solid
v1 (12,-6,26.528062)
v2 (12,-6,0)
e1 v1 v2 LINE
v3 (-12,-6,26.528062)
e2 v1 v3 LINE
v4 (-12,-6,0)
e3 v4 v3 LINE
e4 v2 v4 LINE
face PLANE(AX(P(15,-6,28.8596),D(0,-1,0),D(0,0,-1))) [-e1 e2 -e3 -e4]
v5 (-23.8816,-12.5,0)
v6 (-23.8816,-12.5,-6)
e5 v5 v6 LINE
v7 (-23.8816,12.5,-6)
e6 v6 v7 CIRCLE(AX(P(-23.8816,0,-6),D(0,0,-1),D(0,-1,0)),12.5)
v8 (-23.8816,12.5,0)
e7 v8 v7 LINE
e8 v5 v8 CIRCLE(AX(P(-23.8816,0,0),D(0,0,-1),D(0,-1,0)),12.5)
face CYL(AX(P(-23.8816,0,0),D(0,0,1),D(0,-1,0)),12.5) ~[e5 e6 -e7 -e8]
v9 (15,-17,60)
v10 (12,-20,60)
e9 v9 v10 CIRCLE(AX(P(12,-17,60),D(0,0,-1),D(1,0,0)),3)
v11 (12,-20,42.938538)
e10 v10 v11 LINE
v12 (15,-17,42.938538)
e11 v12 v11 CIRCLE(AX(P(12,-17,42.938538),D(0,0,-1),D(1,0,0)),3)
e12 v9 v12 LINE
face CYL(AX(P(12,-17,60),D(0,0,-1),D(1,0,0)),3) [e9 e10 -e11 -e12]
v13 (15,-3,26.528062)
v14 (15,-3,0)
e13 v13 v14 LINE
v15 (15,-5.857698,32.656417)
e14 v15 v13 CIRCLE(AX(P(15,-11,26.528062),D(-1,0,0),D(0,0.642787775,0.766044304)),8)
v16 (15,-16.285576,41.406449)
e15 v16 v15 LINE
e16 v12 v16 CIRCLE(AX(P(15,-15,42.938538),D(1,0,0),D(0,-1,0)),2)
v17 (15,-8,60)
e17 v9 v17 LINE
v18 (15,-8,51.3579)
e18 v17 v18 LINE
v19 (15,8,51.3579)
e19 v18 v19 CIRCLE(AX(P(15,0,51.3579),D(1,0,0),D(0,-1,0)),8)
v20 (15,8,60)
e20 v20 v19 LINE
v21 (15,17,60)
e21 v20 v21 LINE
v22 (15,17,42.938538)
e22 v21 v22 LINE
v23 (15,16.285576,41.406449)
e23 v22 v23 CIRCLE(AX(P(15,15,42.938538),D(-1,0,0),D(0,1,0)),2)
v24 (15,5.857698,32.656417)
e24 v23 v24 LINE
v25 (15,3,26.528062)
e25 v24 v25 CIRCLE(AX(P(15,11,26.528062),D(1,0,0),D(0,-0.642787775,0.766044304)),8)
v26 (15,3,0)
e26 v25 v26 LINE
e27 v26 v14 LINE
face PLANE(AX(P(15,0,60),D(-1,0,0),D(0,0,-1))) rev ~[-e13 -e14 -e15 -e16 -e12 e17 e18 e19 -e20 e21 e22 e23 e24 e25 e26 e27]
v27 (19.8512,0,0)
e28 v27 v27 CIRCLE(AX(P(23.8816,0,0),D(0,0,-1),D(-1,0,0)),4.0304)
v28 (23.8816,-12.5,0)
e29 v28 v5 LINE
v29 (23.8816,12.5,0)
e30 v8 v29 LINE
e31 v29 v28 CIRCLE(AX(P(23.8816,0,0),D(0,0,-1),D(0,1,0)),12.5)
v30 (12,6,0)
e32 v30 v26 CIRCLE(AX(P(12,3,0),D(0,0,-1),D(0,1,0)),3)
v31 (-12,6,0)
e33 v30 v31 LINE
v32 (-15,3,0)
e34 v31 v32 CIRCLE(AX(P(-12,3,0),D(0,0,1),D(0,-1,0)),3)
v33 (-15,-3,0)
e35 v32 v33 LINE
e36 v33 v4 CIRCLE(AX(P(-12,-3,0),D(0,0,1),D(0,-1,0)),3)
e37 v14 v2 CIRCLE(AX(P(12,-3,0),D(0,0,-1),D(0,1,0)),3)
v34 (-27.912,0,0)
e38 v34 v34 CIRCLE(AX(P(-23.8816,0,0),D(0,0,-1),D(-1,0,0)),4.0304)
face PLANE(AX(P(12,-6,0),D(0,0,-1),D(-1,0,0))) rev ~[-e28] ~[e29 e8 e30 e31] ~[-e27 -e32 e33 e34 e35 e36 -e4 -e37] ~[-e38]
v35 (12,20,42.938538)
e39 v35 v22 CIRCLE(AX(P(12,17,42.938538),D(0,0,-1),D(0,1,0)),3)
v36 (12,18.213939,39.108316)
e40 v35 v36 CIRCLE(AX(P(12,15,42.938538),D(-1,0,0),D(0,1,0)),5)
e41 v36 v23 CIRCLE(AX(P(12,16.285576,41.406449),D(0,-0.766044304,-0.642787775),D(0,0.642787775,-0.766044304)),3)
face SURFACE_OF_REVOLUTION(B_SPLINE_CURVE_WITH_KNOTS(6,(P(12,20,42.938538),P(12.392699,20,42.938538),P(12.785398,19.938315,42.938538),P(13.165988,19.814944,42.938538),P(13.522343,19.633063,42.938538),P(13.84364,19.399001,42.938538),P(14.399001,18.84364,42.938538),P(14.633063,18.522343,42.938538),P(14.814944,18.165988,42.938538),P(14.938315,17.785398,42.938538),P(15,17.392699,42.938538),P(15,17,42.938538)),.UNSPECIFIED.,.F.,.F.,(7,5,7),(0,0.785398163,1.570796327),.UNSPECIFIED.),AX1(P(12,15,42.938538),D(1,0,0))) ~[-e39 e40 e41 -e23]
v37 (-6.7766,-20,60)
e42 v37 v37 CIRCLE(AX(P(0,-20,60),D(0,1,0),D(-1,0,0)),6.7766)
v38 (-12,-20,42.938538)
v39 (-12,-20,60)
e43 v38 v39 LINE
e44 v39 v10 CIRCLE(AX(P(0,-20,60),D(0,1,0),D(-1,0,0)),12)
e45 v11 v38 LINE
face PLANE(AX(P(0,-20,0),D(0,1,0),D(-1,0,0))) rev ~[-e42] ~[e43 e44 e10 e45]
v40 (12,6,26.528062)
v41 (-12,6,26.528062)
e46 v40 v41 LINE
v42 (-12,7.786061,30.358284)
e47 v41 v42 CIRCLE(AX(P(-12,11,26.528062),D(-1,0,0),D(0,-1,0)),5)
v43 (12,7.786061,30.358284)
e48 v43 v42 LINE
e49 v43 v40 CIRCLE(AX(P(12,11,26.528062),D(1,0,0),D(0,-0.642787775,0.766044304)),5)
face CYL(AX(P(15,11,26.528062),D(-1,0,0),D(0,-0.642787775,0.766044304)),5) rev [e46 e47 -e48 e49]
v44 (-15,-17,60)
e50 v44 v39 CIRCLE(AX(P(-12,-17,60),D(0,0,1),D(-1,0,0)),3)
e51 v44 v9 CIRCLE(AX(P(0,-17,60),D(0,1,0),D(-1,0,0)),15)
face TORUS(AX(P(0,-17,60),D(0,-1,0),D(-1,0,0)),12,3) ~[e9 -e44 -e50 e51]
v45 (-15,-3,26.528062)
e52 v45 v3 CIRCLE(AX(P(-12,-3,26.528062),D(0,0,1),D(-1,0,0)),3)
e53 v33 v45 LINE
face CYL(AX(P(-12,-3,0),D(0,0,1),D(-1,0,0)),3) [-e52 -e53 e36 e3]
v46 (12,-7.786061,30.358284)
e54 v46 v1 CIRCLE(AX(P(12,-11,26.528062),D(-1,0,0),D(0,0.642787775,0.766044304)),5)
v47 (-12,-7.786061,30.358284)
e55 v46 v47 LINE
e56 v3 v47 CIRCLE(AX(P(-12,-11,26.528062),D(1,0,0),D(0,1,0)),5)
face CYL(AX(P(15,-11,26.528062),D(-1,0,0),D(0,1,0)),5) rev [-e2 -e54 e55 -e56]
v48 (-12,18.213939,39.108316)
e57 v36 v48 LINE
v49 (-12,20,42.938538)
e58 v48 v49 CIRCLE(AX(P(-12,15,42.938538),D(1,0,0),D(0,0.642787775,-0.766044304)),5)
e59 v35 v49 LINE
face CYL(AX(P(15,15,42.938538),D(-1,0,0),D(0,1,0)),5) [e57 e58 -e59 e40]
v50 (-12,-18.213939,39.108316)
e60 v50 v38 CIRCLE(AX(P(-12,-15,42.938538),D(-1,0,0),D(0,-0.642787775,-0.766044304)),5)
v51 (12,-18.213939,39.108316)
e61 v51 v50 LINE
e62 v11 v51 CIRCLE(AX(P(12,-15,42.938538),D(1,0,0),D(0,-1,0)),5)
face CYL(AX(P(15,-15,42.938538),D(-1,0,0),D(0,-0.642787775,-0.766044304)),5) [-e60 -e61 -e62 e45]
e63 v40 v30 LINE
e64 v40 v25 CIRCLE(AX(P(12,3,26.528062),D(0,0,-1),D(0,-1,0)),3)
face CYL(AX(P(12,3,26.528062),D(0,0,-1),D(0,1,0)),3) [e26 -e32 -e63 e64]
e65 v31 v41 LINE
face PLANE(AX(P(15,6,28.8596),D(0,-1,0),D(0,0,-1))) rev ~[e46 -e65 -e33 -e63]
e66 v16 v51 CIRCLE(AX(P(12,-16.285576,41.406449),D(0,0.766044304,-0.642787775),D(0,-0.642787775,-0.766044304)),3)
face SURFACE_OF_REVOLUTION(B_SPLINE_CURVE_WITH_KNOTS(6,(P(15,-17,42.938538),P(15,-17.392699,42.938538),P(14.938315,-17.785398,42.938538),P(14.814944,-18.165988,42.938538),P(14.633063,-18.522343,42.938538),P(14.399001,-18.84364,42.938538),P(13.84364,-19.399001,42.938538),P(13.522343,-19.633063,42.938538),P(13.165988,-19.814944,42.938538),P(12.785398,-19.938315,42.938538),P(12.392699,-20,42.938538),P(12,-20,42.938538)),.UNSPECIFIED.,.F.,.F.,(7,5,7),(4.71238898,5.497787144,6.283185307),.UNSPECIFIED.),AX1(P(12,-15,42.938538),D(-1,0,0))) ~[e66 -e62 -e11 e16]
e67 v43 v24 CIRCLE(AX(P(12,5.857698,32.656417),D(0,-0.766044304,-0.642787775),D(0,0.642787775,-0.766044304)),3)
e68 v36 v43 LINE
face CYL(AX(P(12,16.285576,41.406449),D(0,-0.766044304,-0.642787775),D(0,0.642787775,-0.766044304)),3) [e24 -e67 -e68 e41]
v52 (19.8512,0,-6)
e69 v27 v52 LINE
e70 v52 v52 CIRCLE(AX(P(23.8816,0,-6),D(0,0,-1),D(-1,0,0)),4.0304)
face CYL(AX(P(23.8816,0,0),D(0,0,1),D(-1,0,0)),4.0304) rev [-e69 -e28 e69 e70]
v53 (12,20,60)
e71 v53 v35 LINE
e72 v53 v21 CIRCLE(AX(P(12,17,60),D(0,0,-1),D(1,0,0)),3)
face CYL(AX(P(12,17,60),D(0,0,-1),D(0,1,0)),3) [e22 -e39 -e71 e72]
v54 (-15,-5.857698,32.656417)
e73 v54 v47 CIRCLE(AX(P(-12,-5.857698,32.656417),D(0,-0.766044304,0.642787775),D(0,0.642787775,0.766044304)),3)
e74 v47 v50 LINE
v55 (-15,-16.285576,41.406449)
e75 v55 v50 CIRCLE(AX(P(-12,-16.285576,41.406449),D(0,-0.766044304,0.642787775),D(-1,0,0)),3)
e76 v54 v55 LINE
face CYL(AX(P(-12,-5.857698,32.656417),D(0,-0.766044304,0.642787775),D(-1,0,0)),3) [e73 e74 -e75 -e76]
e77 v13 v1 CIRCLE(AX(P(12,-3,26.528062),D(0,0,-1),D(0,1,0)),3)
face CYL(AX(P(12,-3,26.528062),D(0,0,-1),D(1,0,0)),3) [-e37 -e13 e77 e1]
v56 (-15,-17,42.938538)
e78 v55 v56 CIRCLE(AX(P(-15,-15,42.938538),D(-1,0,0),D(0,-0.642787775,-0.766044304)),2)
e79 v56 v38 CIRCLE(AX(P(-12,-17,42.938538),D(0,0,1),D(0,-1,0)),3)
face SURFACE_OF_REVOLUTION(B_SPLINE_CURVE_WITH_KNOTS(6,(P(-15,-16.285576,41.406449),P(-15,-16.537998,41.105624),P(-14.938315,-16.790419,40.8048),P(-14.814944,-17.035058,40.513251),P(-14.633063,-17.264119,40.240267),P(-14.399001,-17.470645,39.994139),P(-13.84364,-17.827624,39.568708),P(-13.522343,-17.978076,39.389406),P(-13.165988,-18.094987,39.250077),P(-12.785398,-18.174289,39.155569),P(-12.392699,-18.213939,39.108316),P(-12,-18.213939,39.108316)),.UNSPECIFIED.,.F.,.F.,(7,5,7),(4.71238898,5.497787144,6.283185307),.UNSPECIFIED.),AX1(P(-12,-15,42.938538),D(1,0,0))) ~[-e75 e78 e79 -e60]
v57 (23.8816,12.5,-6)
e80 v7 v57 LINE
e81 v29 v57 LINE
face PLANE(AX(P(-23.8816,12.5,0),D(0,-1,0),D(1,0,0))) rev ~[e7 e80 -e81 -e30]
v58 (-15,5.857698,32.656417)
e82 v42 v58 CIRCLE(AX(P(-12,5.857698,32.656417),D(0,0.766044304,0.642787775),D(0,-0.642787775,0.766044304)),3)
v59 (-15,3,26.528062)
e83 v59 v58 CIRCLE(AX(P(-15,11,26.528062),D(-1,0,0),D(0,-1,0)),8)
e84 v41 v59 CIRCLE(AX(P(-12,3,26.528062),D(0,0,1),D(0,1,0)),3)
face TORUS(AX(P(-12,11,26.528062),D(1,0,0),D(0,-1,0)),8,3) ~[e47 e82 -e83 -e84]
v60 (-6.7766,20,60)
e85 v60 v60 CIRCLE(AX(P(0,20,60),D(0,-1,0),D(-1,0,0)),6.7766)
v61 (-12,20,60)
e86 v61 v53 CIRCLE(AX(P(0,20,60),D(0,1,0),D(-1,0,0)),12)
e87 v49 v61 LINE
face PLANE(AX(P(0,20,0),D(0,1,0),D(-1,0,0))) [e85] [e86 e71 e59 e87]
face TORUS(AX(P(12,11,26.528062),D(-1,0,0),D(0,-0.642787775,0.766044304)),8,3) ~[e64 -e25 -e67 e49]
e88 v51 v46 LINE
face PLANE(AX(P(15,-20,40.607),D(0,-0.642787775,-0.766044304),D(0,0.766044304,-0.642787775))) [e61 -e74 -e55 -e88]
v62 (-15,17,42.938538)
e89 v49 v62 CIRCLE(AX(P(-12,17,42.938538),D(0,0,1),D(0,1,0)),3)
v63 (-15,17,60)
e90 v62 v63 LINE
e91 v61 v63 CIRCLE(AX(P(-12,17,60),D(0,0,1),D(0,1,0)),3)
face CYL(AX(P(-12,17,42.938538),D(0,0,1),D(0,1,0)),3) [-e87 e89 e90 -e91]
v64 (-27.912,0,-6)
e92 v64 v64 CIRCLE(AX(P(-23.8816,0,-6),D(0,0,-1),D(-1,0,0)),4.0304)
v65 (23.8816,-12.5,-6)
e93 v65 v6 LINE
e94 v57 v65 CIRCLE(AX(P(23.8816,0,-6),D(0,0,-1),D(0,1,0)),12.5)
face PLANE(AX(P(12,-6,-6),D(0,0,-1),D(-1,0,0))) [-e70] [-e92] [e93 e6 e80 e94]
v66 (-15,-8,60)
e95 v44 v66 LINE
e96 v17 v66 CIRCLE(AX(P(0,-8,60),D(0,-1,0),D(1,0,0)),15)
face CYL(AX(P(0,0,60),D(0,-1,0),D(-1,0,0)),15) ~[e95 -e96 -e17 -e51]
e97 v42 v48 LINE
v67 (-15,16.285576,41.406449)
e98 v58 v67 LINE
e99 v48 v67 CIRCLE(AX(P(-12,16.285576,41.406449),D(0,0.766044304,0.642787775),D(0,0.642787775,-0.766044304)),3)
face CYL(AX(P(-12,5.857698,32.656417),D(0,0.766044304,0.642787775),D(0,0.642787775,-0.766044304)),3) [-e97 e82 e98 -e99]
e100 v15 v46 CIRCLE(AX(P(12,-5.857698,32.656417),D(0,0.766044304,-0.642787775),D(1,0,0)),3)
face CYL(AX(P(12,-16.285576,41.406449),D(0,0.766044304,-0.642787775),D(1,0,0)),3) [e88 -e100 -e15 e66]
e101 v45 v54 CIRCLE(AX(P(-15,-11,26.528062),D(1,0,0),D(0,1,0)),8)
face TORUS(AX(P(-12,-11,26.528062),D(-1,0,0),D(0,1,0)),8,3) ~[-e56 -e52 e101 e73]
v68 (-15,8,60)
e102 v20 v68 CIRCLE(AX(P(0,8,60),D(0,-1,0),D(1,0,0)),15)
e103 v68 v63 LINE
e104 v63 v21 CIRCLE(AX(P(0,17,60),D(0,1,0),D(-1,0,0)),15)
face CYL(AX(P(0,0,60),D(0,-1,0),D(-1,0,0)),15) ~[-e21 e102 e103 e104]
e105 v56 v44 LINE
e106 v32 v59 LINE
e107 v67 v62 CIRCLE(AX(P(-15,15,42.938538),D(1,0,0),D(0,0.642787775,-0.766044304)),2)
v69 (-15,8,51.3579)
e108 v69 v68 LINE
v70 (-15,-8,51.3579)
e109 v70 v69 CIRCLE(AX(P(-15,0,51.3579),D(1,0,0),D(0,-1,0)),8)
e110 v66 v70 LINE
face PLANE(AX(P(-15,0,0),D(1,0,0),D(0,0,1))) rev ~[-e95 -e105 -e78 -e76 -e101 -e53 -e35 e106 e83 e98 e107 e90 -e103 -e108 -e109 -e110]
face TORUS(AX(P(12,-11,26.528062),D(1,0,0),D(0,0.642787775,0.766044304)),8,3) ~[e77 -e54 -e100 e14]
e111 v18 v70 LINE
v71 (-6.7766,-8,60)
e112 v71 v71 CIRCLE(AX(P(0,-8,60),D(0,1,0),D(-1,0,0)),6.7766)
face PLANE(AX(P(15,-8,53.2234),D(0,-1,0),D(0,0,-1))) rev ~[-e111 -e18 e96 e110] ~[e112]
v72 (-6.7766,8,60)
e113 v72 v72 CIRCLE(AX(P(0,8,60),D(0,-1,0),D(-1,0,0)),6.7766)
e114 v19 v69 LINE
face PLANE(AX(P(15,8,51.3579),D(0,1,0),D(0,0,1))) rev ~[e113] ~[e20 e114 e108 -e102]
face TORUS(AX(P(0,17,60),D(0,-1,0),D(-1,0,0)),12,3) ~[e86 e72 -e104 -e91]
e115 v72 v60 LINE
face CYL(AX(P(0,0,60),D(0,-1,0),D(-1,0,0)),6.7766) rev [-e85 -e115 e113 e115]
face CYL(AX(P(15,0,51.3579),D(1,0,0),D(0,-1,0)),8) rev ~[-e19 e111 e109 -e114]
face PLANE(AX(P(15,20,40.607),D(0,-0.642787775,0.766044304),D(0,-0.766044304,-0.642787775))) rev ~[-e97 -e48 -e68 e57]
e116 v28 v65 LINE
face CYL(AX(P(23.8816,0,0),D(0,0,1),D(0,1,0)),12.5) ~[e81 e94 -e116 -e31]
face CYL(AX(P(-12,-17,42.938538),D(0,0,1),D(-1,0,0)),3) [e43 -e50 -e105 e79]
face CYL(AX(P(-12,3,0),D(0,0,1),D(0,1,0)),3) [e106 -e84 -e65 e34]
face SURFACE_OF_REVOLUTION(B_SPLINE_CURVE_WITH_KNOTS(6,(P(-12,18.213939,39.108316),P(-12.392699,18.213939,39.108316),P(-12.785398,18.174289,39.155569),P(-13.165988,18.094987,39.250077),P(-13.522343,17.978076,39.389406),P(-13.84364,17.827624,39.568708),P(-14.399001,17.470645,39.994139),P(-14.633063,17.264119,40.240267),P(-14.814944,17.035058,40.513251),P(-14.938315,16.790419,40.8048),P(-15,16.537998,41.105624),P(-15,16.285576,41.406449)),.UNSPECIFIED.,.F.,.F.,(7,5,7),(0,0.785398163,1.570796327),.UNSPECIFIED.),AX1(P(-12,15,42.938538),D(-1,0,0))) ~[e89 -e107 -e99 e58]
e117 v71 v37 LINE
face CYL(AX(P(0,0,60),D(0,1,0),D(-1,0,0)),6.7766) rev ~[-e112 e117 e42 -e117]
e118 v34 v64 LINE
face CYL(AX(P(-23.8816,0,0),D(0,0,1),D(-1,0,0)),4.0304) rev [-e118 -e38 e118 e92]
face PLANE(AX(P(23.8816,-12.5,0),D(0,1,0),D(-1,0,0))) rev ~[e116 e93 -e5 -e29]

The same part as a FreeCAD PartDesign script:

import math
import FreeCAD as App
import Part
import Sketcher

V = App.Vector
Q = App.Units.Quantity


def edges_at(feature, points):
    """Names of the edges that pass closest to the given points."""
    edges = feature.Shape.Edges
    near = lambda p: min(range(len(edges)), key=lambda i: edges[i].distToShape(Part.Vertex(*p))[0])
    return sorted({f"Edge{near(p) + 1}" for p in points})

doc = App.newDocument("Part")
body = doc.addObject("PartDesign::Body", "Body")

# Sketch on XZ plane
sketch1 = body.newObject("Sketcher::SketchObject", "Sketch")
sketch1.AttachmentSupport = (doc.getObject("XZ_Plane"), [""])
sketch1.MapMode = "FlatFace"
sketch1.addGeometry([
    Part.LineSegment(V(-15, 0, 0), V(-15, 60, 0)),  # 0
    Part.ArcOfCircle(Part.Circle(V(0, 60, 0), V(0, 0, 1), 15), math.radians(0), math.radians(180)),  # 1
    Part.LineSegment(V(15, 60, 0), V(15, 0, 0)),  # 2
    Part.LineSegment(V(15, 0, 0), V(-15, 0, 0)),  # 3
    Part.Circle(V(0, 60, 0), V(0, 0, 1), 7),  # 4
], False)
sketch1.addConstraint([
    Sketcher.Constraint("Tangent", 0, 2, 1, 2),
    Sketcher.Constraint("Tangent", 1, 1, 2, 1),
    Sketcher.Constraint("Coincident", 2, 2, 3, 1),
    Sketcher.Constraint("Coincident", 3, 2, 0, 1),
    Sketcher.Constraint("Vertical", 0),
    Sketcher.Constraint("Vertical", 2),
    Sketcher.Constraint("Horizontal", 3),
    Sketcher.Constraint("Coincident", 4, 3, 1, 3),
    Sketcher.Constraint("Symmetric", 2, 2, 3, 2, -1, 1),
    Sketcher.Constraint("Radius", 1, 15.0),
    Sketcher.Constraint("DistanceY", 0, 1, 0, 2, 60.0),
    Sketcher.Constraint("Diameter", 4, 13.5532),
])
pad1 = body.newObject("PartDesign::Pad", "Pad")
pad1.Profile = sketch1
pad1.Length = 40
pad1.Midplane = True

# Sketch on YZ plane
sketch2 = body.newObject("Sketcher::SketchObject", "Sketch001")
sketch2.AttachmentSupport = (doc.getObject("YZ_Plane"), [""])
sketch2.MapMode = "FlatFace"
sketch2.AttachmentOffset = App.Placement(V(0, 0, 15), App.Rotation())
sketch2.addGeometry([
    Part.LineSegment(V(-20, 41, 0), V(-20, 0, 0)),  # 0
    Part.LineSegment(V(-20, 0, 0), V(-6, 0, 0)),  # 1
    Part.LineSegment(V(-6, 0, 0), V(-6, 29, 0)),  # 2
    Part.LineSegment(V(-6, 29, 0), V(-20, 41, 0)),  # 3
    Part.LineSegment(V(6, 29, 0), V(6, 0, 0)),  # 4
    Part.LineSegment(V(6, 0, 0), V(20, 0, 0)),  # 5
    Part.LineSegment(V(20, 0, 0), V(20, 41, 0)),  # 6
    Part.LineSegment(V(20, 41, 0), V(6, 29, 0)),  # 7
    Part.LineSegment(V(8, 51, 0), V(8, 75, 0)),  # 8
    Part.LineSegment(V(8, 75, 0), V(-8, 75, 0)),  # 9
    Part.LineSegment(V(-8, 75, 0), V(-8, 51, 0)),  # 10
    Part.ArcOfCircle(Part.Circle(V(0, 51, 0), V(0, 0, 1), 8), math.radians(180), math.radians(360)),  # 11
], False)
sketch2.addConstraint([
    Sketcher.Constraint("Coincident", 0, 2, 1, 1),
    Sketcher.Constraint("Coincident", 1, 2, 2, 1),
    Sketcher.Constraint("Coincident", 2, 2, 3, 1),
    Sketcher.Constraint("Coincident", 3, 2, 0, 1),
    Sketcher.Constraint("Coincident", 4, 2, 5, 1),
    Sketcher.Constraint("Coincident", 5, 2, 6, 1),
    Sketcher.Constraint("Coincident", 6, 2, 7, 1),
    Sketcher.Constraint("Coincident", 7, 2, 4, 1),
    Sketcher.Constraint("Coincident", 8, 2, 9, 1),
    Sketcher.Constraint("Coincident", 9, 2, 10, 1),
    Sketcher.Constraint("Tangent", 10, 2, 11, 1),
    Sketcher.Constraint("Tangent", 11, 2, 8, 1),
    Sketcher.Constraint("Vertical", 0),
    Sketcher.Constraint("Horizontal", 1),
    Sketcher.Constraint("Vertical", 2),
    Sketcher.Constraint("Vertical", 4),
    Sketcher.Constraint("Horizontal", 5),
    Sketcher.Constraint("Vertical", 6),
    Sketcher.Constraint("Vertical", 8),
    Sketcher.Constraint("Horizontal", 9),
    Sketcher.Constraint("Vertical", 10),
    Sketcher.Constraint("Symmetric", 1, 2, 4, 2, -1, 1),
    Sketcher.Constraint("Symmetric", 0, 2, 5, 2, -2),
    Sketcher.Constraint("PointOnObject", 11, 3, -2),
    Sketcher.Constraint("Horizontal", 3, 2, 6, 2),
    Sketcher.Constraint("Horizontal", 2, 2, 7, 2),
    Sketcher.Constraint("Radius", 11, 8.0),
    Sketcher.Constraint("DistanceX", 1, 2, 4, 2, 12.0),
    Sketcher.Constraint("DistanceX", 8, 2, 6, 2, 12.0),
    Sketcher.Constraint("Angle", 3, Q("140 deg")),
    Sketcher.Constraint("DistanceY", -1, 1, 8, 2, 75.0),
    Sketcher.Constraint("DistanceY", 0, 2, 0, 1, 40.607),
    Sketcher.Constraint("DistanceY", 8, 1, 8, 2, 23.642),
])
pocket1 = body.newObject("PartDesign::Pocket", "Pocket")
pocket1.Profile = sketch2
pocket1.Length = 40
doc.recompute()

fillet = body.newObject("PartDesign::Fillet", "Fillet")
fillet.Base = (pocket1, edges_at(pocket1, [
    (0, -20, 40.607),
    (0, -6, 28.86),
    (0, 6, 28.86),
    (0, 20, 40.607),
]))
fillet.Radius = 5
doc.recompute()

fillet2 = body.newObject("PartDesign::Fillet", "Fillet001")
fillet2.Base = (fillet, edges_at(fillet, [
    (-15, -20, 51.469),
    (-15, -19.532, 40.825),
    (-15, -13, 34.733),
    (-15, -6.468, 28.641),
    (-15, -6, 13.264),
    (15, -20, 51.469),
    (15, -19.532, 40.825),
    (15, -13, 34.733),
    (15, -6.468, 28.641),
    (15, -6, 13.264),
    (0, -20, 75),
    (15, 20, 51.469),
    (15, 19.532, 40.825),
    (15, 13, 34.733),
    (15, 6.468, 28.641),
    (15, 6, 13.264),
    (-15, 20, 51.469),
    (-15, 19.532, 40.825),
    (-15, 13, 34.733),
    (-15, 6.468, 28.641),
    (-15, 6, 13.264),
    (0, 20, 75),
]))
fillet2.Radius = 3

# Sketch on XY plane
sketch3 = body.newObject("Sketcher::SketchObject", "Sketch002")
sketch3.AttachmentSupport = (doc.getObject("XY_Plane"), [""])
sketch3.MapMode = "FlatFace"
sketch3.addGeometry([
    Part.ArcOfCircle(Part.Circle(V(23.9, 0, 0), V(0, 0, 1), 12.5), math.radians(-90), math.radians(90)),  # 0
    Part.LineSegment(V(23.9, -12.5, 0), V(-23.9, -12.5, 0)),  # 1
    Part.ArcOfCircle(Part.Circle(V(-23.9, 0, 0), V(0, 0, 1), 12.5), math.radians(90), math.radians(270)),  # 2
    Part.LineSegment(V(-23.9, 12.5, 0), V(23.9, 12.5, 0)),  # 3
    Part.Circle(V(23.9, 0, 0), V(0, 0, 1), 4),  # 4
    Part.Circle(V(-23.9, 0, 0), V(0, 0, 1), 4),  # 5
], False)
sketch3.addConstraint([
    Sketcher.Constraint("Tangent", 0, 1, 1, 1),
    Sketcher.Constraint("Tangent", 1, 2, 2, 2),
    Sketcher.Constraint("Tangent", 2, 1, 3, 1),
    Sketcher.Constraint("Tangent", 3, 2, 0, 2),
    Sketcher.Constraint("Horizontal", 1),
    Sketcher.Constraint("Horizontal", 3),
    Sketcher.Constraint("Coincident", 4, 3, 0, 3),
    Sketcher.Constraint("Coincident", 5, 3, 2, 3),
    Sketcher.Constraint("Equal", 4, 5),
    Sketcher.Constraint("Symmetric", 0, 3, 2, 3, -1, 1),
    Sketcher.Constraint("Radius", 0, 12.5),
    Sketcher.Constraint("Diameter", 4, 8.0608),
    Sketcher.Constraint("DistanceX", 1, 2, 1, 1, 47.7632),
])
pad2 = body.newObject("PartDesign::Pad", "Pad001")
pad2.Profile = sketch3
pad2.Length = 6
pad2.Reversed = True

doc.recompute()
